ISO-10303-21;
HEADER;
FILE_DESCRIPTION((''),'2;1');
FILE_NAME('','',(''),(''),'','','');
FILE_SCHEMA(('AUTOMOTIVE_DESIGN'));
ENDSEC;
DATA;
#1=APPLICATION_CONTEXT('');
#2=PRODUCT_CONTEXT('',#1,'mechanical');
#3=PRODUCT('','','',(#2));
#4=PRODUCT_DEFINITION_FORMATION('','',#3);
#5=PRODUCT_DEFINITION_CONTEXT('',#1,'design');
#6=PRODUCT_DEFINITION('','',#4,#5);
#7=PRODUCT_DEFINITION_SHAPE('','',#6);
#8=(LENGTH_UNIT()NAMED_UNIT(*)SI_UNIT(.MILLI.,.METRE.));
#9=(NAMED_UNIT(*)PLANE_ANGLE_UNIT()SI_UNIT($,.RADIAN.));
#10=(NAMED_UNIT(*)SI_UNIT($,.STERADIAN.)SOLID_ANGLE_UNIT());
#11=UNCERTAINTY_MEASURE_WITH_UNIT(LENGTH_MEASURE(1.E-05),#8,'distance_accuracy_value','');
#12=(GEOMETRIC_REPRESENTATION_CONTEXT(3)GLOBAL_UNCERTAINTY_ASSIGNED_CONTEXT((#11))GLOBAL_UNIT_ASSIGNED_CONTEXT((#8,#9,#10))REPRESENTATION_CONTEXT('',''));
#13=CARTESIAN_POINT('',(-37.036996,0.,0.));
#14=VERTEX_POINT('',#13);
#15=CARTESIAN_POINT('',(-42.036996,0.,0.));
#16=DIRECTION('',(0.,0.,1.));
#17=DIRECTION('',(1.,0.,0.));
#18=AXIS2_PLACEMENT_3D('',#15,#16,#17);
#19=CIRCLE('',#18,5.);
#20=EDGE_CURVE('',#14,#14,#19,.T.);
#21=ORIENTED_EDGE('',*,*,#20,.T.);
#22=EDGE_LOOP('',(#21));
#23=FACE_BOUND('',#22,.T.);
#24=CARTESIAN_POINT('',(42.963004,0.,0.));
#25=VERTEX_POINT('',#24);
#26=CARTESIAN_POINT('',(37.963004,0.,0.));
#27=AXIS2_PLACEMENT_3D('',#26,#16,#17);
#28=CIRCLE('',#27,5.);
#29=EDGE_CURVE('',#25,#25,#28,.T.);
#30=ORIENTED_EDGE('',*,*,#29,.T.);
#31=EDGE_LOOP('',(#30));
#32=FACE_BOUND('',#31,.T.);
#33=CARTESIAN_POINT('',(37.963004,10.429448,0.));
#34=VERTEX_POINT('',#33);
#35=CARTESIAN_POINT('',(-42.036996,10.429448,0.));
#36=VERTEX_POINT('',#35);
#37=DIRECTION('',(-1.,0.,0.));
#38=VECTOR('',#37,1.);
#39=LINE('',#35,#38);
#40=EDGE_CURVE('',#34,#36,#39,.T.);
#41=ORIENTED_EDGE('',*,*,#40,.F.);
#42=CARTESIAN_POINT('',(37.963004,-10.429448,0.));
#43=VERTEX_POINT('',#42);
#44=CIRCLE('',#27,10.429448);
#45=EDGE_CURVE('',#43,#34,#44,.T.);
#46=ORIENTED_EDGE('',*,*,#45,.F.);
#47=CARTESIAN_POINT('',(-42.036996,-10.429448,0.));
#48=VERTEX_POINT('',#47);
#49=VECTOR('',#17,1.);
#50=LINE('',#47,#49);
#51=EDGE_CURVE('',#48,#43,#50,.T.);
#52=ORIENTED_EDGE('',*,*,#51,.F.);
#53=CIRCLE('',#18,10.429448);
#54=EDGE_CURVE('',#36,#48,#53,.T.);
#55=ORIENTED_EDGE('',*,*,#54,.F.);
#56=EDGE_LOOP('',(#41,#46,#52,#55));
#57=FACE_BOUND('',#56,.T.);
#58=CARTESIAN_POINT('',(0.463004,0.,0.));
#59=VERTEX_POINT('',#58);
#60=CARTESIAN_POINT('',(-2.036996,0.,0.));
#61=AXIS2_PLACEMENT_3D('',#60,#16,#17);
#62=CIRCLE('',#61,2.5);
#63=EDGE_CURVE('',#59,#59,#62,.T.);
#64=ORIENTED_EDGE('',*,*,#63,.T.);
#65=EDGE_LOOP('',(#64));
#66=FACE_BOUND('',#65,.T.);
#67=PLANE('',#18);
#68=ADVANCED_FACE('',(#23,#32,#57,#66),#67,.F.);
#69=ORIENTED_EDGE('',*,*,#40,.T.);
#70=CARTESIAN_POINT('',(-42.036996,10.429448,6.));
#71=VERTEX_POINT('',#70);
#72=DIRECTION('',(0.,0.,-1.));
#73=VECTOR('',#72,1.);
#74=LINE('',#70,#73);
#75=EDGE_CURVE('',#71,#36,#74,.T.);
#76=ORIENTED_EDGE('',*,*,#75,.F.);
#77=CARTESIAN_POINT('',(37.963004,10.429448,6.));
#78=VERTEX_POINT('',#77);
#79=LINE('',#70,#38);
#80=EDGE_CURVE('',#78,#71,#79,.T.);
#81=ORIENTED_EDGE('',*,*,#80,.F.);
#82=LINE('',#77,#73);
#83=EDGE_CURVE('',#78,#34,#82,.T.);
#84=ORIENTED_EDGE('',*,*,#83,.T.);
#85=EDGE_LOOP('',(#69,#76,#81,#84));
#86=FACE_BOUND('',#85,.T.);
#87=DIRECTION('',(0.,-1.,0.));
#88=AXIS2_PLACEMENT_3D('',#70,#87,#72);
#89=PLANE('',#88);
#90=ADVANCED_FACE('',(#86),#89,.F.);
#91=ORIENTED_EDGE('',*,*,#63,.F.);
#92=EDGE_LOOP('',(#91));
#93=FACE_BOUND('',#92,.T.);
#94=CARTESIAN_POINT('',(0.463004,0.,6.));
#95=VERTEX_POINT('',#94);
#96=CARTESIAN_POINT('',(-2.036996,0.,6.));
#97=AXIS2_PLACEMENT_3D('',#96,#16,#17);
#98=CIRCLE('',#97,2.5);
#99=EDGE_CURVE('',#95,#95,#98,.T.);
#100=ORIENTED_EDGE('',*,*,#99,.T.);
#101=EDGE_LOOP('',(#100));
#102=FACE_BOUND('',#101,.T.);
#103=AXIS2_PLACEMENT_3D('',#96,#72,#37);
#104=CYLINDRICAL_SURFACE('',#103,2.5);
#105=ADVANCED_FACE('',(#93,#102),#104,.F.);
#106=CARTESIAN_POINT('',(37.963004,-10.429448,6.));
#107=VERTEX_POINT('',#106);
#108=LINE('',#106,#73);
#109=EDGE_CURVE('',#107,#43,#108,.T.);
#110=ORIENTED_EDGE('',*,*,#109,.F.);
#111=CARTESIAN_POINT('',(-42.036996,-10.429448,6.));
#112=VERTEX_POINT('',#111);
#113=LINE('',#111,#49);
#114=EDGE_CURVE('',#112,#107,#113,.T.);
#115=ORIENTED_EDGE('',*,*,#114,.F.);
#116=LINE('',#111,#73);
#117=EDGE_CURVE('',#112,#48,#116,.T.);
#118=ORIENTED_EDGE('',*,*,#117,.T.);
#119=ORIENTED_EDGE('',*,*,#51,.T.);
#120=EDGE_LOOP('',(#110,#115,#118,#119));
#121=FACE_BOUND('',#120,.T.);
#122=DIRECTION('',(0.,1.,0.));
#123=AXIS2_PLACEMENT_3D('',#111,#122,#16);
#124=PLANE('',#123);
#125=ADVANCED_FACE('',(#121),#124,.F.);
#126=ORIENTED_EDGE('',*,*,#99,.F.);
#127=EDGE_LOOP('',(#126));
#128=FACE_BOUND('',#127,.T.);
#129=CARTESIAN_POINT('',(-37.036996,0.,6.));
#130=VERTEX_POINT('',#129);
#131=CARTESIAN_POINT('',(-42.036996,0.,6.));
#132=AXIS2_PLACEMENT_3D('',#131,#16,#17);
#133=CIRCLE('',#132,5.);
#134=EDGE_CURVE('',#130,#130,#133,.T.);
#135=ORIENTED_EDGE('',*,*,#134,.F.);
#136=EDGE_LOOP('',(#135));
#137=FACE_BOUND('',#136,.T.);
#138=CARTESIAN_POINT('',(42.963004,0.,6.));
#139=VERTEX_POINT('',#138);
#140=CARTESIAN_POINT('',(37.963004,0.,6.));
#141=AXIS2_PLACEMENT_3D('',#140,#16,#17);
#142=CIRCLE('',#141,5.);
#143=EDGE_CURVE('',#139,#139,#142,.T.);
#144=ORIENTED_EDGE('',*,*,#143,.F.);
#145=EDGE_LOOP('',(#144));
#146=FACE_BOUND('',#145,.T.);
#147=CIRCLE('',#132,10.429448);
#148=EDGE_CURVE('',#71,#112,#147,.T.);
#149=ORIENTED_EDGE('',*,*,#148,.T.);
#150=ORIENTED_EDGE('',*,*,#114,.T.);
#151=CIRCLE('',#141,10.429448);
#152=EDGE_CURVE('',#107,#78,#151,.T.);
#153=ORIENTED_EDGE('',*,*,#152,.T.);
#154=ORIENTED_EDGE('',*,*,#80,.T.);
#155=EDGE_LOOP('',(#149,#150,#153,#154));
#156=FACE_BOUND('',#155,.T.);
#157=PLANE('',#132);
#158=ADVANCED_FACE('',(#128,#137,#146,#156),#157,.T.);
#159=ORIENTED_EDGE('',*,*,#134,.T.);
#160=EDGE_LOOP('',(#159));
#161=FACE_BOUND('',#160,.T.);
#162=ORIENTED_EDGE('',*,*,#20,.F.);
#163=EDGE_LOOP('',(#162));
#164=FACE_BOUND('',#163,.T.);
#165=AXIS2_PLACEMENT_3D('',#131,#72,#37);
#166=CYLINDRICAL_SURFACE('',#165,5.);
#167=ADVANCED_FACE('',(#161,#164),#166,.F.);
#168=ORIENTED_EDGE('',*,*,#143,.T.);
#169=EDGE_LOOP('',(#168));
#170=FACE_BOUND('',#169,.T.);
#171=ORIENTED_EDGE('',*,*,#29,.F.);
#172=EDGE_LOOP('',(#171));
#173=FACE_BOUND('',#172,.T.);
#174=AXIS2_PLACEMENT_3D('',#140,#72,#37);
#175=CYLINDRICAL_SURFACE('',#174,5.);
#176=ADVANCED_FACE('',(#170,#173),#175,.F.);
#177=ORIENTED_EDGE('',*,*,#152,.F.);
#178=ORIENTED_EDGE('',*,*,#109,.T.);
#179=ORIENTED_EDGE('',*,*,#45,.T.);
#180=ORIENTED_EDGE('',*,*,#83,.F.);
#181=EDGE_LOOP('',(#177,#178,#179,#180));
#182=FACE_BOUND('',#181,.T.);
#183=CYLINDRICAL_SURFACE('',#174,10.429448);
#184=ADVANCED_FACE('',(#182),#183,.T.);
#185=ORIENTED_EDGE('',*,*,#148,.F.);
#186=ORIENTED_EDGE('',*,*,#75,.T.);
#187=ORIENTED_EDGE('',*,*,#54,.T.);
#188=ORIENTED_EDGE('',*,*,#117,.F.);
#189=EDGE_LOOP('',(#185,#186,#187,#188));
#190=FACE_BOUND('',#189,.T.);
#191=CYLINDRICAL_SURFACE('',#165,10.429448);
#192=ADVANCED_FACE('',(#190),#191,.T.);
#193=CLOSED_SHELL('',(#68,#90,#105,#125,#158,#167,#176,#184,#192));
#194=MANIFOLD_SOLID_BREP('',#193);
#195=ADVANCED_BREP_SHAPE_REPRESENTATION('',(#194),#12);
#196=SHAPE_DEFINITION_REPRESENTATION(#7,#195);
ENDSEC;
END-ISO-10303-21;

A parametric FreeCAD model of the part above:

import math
import FreeCAD as App
import Part
import Sketcher

doc = App.newDocument("Part")
body = doc.addObject("PartDesign::Body", "Body")

sketch1 = doc.addObject("Sketcher::SketchObject", "Sketch")
body.addObject(sketch1)
sketch1.AttachmentSupport = (doc.XY_Plane, [""])
sketch1.MapMode = "FlatFace"
sketch1.addGeometry([
    Part.LineSegment(App.Vector(38, 10.4, 0), App.Vector(-42, 10.4, 0)),
    Part.ArcOfCircle(Part.Circle(App.Vector(-42, 0, 0), App.Vector(0, 0, 1), 10.4), math.radians(90), math.radians(270)),
    Part.LineSegment(App.Vector(-42, -10.4, 0), App.Vector(38, -10.4, 0)),
    Part.ArcOfCircle(Part.Circle(App.Vector(38, 0, 0), App.Vector(0, 0, 1), 10.4), math.radians(-90), math.radians(90)),
    Part.Circle(App.Vector(38, 0, 0), App.Vector(0, 0, 1), 5),
    Part.Circle(App.Vector(-2, 0, 0), App.Vector(0, 0, 1), 2.5),
    Part.Circle(App.Vector(-42, 0, 0), App.Vector(0, 0, 1), 5),
], False)
sketch1.addConstraint([
    Sketcher.Constraint("Tangent", 0, 2, 1, 1),
    Sketcher.Constraint("Tangent", 1, 2, 2, 1),
    Sketcher.Constraint("Tangent", 2, 2, 3, 1),
    Sketcher.Constraint("Tangent", 3, 2, 0, 1),
    Sketcher.Constraint("Horizontal", 0),
    Sketcher.Constraint("Horizontal", 2),
    Sketcher.Constraint("Coincident", 4, 3, 3, 3),
    Sketcher.Constraint("Coincident", 6, 3, 1, 3),
    Sketcher.Constraint("Equal", 4, 6),
    Sketcher.Constraint("PointOnObject", 1, 3, -1),
    Sketcher.Constraint("PointOnObject", 5, 3, -1),
    Sketcher.Constraint("Diameter", 4, 10.0),
    Sketcher.Constraint("Diameter", 5, 5.0),
    Sketcher.Constraint("DistanceX", 0, 2, 0, 1, 80.0),
    Sketcher.Constraint("DistanceX", 1, 3, 5, 3, 40.0),
    Sketcher.Constraint("Radius", 1, 10.429448),
    Sketcher.Constraint("DistanceX", 1, 3, -1, 1, 42.036996),
])
pad1 = doc.addObject("PartDesign::Pad", "Pad")
body.addObject(pad1)
pad1.Profile = sketch1
pad1.Length = 6

doc.recompute()
